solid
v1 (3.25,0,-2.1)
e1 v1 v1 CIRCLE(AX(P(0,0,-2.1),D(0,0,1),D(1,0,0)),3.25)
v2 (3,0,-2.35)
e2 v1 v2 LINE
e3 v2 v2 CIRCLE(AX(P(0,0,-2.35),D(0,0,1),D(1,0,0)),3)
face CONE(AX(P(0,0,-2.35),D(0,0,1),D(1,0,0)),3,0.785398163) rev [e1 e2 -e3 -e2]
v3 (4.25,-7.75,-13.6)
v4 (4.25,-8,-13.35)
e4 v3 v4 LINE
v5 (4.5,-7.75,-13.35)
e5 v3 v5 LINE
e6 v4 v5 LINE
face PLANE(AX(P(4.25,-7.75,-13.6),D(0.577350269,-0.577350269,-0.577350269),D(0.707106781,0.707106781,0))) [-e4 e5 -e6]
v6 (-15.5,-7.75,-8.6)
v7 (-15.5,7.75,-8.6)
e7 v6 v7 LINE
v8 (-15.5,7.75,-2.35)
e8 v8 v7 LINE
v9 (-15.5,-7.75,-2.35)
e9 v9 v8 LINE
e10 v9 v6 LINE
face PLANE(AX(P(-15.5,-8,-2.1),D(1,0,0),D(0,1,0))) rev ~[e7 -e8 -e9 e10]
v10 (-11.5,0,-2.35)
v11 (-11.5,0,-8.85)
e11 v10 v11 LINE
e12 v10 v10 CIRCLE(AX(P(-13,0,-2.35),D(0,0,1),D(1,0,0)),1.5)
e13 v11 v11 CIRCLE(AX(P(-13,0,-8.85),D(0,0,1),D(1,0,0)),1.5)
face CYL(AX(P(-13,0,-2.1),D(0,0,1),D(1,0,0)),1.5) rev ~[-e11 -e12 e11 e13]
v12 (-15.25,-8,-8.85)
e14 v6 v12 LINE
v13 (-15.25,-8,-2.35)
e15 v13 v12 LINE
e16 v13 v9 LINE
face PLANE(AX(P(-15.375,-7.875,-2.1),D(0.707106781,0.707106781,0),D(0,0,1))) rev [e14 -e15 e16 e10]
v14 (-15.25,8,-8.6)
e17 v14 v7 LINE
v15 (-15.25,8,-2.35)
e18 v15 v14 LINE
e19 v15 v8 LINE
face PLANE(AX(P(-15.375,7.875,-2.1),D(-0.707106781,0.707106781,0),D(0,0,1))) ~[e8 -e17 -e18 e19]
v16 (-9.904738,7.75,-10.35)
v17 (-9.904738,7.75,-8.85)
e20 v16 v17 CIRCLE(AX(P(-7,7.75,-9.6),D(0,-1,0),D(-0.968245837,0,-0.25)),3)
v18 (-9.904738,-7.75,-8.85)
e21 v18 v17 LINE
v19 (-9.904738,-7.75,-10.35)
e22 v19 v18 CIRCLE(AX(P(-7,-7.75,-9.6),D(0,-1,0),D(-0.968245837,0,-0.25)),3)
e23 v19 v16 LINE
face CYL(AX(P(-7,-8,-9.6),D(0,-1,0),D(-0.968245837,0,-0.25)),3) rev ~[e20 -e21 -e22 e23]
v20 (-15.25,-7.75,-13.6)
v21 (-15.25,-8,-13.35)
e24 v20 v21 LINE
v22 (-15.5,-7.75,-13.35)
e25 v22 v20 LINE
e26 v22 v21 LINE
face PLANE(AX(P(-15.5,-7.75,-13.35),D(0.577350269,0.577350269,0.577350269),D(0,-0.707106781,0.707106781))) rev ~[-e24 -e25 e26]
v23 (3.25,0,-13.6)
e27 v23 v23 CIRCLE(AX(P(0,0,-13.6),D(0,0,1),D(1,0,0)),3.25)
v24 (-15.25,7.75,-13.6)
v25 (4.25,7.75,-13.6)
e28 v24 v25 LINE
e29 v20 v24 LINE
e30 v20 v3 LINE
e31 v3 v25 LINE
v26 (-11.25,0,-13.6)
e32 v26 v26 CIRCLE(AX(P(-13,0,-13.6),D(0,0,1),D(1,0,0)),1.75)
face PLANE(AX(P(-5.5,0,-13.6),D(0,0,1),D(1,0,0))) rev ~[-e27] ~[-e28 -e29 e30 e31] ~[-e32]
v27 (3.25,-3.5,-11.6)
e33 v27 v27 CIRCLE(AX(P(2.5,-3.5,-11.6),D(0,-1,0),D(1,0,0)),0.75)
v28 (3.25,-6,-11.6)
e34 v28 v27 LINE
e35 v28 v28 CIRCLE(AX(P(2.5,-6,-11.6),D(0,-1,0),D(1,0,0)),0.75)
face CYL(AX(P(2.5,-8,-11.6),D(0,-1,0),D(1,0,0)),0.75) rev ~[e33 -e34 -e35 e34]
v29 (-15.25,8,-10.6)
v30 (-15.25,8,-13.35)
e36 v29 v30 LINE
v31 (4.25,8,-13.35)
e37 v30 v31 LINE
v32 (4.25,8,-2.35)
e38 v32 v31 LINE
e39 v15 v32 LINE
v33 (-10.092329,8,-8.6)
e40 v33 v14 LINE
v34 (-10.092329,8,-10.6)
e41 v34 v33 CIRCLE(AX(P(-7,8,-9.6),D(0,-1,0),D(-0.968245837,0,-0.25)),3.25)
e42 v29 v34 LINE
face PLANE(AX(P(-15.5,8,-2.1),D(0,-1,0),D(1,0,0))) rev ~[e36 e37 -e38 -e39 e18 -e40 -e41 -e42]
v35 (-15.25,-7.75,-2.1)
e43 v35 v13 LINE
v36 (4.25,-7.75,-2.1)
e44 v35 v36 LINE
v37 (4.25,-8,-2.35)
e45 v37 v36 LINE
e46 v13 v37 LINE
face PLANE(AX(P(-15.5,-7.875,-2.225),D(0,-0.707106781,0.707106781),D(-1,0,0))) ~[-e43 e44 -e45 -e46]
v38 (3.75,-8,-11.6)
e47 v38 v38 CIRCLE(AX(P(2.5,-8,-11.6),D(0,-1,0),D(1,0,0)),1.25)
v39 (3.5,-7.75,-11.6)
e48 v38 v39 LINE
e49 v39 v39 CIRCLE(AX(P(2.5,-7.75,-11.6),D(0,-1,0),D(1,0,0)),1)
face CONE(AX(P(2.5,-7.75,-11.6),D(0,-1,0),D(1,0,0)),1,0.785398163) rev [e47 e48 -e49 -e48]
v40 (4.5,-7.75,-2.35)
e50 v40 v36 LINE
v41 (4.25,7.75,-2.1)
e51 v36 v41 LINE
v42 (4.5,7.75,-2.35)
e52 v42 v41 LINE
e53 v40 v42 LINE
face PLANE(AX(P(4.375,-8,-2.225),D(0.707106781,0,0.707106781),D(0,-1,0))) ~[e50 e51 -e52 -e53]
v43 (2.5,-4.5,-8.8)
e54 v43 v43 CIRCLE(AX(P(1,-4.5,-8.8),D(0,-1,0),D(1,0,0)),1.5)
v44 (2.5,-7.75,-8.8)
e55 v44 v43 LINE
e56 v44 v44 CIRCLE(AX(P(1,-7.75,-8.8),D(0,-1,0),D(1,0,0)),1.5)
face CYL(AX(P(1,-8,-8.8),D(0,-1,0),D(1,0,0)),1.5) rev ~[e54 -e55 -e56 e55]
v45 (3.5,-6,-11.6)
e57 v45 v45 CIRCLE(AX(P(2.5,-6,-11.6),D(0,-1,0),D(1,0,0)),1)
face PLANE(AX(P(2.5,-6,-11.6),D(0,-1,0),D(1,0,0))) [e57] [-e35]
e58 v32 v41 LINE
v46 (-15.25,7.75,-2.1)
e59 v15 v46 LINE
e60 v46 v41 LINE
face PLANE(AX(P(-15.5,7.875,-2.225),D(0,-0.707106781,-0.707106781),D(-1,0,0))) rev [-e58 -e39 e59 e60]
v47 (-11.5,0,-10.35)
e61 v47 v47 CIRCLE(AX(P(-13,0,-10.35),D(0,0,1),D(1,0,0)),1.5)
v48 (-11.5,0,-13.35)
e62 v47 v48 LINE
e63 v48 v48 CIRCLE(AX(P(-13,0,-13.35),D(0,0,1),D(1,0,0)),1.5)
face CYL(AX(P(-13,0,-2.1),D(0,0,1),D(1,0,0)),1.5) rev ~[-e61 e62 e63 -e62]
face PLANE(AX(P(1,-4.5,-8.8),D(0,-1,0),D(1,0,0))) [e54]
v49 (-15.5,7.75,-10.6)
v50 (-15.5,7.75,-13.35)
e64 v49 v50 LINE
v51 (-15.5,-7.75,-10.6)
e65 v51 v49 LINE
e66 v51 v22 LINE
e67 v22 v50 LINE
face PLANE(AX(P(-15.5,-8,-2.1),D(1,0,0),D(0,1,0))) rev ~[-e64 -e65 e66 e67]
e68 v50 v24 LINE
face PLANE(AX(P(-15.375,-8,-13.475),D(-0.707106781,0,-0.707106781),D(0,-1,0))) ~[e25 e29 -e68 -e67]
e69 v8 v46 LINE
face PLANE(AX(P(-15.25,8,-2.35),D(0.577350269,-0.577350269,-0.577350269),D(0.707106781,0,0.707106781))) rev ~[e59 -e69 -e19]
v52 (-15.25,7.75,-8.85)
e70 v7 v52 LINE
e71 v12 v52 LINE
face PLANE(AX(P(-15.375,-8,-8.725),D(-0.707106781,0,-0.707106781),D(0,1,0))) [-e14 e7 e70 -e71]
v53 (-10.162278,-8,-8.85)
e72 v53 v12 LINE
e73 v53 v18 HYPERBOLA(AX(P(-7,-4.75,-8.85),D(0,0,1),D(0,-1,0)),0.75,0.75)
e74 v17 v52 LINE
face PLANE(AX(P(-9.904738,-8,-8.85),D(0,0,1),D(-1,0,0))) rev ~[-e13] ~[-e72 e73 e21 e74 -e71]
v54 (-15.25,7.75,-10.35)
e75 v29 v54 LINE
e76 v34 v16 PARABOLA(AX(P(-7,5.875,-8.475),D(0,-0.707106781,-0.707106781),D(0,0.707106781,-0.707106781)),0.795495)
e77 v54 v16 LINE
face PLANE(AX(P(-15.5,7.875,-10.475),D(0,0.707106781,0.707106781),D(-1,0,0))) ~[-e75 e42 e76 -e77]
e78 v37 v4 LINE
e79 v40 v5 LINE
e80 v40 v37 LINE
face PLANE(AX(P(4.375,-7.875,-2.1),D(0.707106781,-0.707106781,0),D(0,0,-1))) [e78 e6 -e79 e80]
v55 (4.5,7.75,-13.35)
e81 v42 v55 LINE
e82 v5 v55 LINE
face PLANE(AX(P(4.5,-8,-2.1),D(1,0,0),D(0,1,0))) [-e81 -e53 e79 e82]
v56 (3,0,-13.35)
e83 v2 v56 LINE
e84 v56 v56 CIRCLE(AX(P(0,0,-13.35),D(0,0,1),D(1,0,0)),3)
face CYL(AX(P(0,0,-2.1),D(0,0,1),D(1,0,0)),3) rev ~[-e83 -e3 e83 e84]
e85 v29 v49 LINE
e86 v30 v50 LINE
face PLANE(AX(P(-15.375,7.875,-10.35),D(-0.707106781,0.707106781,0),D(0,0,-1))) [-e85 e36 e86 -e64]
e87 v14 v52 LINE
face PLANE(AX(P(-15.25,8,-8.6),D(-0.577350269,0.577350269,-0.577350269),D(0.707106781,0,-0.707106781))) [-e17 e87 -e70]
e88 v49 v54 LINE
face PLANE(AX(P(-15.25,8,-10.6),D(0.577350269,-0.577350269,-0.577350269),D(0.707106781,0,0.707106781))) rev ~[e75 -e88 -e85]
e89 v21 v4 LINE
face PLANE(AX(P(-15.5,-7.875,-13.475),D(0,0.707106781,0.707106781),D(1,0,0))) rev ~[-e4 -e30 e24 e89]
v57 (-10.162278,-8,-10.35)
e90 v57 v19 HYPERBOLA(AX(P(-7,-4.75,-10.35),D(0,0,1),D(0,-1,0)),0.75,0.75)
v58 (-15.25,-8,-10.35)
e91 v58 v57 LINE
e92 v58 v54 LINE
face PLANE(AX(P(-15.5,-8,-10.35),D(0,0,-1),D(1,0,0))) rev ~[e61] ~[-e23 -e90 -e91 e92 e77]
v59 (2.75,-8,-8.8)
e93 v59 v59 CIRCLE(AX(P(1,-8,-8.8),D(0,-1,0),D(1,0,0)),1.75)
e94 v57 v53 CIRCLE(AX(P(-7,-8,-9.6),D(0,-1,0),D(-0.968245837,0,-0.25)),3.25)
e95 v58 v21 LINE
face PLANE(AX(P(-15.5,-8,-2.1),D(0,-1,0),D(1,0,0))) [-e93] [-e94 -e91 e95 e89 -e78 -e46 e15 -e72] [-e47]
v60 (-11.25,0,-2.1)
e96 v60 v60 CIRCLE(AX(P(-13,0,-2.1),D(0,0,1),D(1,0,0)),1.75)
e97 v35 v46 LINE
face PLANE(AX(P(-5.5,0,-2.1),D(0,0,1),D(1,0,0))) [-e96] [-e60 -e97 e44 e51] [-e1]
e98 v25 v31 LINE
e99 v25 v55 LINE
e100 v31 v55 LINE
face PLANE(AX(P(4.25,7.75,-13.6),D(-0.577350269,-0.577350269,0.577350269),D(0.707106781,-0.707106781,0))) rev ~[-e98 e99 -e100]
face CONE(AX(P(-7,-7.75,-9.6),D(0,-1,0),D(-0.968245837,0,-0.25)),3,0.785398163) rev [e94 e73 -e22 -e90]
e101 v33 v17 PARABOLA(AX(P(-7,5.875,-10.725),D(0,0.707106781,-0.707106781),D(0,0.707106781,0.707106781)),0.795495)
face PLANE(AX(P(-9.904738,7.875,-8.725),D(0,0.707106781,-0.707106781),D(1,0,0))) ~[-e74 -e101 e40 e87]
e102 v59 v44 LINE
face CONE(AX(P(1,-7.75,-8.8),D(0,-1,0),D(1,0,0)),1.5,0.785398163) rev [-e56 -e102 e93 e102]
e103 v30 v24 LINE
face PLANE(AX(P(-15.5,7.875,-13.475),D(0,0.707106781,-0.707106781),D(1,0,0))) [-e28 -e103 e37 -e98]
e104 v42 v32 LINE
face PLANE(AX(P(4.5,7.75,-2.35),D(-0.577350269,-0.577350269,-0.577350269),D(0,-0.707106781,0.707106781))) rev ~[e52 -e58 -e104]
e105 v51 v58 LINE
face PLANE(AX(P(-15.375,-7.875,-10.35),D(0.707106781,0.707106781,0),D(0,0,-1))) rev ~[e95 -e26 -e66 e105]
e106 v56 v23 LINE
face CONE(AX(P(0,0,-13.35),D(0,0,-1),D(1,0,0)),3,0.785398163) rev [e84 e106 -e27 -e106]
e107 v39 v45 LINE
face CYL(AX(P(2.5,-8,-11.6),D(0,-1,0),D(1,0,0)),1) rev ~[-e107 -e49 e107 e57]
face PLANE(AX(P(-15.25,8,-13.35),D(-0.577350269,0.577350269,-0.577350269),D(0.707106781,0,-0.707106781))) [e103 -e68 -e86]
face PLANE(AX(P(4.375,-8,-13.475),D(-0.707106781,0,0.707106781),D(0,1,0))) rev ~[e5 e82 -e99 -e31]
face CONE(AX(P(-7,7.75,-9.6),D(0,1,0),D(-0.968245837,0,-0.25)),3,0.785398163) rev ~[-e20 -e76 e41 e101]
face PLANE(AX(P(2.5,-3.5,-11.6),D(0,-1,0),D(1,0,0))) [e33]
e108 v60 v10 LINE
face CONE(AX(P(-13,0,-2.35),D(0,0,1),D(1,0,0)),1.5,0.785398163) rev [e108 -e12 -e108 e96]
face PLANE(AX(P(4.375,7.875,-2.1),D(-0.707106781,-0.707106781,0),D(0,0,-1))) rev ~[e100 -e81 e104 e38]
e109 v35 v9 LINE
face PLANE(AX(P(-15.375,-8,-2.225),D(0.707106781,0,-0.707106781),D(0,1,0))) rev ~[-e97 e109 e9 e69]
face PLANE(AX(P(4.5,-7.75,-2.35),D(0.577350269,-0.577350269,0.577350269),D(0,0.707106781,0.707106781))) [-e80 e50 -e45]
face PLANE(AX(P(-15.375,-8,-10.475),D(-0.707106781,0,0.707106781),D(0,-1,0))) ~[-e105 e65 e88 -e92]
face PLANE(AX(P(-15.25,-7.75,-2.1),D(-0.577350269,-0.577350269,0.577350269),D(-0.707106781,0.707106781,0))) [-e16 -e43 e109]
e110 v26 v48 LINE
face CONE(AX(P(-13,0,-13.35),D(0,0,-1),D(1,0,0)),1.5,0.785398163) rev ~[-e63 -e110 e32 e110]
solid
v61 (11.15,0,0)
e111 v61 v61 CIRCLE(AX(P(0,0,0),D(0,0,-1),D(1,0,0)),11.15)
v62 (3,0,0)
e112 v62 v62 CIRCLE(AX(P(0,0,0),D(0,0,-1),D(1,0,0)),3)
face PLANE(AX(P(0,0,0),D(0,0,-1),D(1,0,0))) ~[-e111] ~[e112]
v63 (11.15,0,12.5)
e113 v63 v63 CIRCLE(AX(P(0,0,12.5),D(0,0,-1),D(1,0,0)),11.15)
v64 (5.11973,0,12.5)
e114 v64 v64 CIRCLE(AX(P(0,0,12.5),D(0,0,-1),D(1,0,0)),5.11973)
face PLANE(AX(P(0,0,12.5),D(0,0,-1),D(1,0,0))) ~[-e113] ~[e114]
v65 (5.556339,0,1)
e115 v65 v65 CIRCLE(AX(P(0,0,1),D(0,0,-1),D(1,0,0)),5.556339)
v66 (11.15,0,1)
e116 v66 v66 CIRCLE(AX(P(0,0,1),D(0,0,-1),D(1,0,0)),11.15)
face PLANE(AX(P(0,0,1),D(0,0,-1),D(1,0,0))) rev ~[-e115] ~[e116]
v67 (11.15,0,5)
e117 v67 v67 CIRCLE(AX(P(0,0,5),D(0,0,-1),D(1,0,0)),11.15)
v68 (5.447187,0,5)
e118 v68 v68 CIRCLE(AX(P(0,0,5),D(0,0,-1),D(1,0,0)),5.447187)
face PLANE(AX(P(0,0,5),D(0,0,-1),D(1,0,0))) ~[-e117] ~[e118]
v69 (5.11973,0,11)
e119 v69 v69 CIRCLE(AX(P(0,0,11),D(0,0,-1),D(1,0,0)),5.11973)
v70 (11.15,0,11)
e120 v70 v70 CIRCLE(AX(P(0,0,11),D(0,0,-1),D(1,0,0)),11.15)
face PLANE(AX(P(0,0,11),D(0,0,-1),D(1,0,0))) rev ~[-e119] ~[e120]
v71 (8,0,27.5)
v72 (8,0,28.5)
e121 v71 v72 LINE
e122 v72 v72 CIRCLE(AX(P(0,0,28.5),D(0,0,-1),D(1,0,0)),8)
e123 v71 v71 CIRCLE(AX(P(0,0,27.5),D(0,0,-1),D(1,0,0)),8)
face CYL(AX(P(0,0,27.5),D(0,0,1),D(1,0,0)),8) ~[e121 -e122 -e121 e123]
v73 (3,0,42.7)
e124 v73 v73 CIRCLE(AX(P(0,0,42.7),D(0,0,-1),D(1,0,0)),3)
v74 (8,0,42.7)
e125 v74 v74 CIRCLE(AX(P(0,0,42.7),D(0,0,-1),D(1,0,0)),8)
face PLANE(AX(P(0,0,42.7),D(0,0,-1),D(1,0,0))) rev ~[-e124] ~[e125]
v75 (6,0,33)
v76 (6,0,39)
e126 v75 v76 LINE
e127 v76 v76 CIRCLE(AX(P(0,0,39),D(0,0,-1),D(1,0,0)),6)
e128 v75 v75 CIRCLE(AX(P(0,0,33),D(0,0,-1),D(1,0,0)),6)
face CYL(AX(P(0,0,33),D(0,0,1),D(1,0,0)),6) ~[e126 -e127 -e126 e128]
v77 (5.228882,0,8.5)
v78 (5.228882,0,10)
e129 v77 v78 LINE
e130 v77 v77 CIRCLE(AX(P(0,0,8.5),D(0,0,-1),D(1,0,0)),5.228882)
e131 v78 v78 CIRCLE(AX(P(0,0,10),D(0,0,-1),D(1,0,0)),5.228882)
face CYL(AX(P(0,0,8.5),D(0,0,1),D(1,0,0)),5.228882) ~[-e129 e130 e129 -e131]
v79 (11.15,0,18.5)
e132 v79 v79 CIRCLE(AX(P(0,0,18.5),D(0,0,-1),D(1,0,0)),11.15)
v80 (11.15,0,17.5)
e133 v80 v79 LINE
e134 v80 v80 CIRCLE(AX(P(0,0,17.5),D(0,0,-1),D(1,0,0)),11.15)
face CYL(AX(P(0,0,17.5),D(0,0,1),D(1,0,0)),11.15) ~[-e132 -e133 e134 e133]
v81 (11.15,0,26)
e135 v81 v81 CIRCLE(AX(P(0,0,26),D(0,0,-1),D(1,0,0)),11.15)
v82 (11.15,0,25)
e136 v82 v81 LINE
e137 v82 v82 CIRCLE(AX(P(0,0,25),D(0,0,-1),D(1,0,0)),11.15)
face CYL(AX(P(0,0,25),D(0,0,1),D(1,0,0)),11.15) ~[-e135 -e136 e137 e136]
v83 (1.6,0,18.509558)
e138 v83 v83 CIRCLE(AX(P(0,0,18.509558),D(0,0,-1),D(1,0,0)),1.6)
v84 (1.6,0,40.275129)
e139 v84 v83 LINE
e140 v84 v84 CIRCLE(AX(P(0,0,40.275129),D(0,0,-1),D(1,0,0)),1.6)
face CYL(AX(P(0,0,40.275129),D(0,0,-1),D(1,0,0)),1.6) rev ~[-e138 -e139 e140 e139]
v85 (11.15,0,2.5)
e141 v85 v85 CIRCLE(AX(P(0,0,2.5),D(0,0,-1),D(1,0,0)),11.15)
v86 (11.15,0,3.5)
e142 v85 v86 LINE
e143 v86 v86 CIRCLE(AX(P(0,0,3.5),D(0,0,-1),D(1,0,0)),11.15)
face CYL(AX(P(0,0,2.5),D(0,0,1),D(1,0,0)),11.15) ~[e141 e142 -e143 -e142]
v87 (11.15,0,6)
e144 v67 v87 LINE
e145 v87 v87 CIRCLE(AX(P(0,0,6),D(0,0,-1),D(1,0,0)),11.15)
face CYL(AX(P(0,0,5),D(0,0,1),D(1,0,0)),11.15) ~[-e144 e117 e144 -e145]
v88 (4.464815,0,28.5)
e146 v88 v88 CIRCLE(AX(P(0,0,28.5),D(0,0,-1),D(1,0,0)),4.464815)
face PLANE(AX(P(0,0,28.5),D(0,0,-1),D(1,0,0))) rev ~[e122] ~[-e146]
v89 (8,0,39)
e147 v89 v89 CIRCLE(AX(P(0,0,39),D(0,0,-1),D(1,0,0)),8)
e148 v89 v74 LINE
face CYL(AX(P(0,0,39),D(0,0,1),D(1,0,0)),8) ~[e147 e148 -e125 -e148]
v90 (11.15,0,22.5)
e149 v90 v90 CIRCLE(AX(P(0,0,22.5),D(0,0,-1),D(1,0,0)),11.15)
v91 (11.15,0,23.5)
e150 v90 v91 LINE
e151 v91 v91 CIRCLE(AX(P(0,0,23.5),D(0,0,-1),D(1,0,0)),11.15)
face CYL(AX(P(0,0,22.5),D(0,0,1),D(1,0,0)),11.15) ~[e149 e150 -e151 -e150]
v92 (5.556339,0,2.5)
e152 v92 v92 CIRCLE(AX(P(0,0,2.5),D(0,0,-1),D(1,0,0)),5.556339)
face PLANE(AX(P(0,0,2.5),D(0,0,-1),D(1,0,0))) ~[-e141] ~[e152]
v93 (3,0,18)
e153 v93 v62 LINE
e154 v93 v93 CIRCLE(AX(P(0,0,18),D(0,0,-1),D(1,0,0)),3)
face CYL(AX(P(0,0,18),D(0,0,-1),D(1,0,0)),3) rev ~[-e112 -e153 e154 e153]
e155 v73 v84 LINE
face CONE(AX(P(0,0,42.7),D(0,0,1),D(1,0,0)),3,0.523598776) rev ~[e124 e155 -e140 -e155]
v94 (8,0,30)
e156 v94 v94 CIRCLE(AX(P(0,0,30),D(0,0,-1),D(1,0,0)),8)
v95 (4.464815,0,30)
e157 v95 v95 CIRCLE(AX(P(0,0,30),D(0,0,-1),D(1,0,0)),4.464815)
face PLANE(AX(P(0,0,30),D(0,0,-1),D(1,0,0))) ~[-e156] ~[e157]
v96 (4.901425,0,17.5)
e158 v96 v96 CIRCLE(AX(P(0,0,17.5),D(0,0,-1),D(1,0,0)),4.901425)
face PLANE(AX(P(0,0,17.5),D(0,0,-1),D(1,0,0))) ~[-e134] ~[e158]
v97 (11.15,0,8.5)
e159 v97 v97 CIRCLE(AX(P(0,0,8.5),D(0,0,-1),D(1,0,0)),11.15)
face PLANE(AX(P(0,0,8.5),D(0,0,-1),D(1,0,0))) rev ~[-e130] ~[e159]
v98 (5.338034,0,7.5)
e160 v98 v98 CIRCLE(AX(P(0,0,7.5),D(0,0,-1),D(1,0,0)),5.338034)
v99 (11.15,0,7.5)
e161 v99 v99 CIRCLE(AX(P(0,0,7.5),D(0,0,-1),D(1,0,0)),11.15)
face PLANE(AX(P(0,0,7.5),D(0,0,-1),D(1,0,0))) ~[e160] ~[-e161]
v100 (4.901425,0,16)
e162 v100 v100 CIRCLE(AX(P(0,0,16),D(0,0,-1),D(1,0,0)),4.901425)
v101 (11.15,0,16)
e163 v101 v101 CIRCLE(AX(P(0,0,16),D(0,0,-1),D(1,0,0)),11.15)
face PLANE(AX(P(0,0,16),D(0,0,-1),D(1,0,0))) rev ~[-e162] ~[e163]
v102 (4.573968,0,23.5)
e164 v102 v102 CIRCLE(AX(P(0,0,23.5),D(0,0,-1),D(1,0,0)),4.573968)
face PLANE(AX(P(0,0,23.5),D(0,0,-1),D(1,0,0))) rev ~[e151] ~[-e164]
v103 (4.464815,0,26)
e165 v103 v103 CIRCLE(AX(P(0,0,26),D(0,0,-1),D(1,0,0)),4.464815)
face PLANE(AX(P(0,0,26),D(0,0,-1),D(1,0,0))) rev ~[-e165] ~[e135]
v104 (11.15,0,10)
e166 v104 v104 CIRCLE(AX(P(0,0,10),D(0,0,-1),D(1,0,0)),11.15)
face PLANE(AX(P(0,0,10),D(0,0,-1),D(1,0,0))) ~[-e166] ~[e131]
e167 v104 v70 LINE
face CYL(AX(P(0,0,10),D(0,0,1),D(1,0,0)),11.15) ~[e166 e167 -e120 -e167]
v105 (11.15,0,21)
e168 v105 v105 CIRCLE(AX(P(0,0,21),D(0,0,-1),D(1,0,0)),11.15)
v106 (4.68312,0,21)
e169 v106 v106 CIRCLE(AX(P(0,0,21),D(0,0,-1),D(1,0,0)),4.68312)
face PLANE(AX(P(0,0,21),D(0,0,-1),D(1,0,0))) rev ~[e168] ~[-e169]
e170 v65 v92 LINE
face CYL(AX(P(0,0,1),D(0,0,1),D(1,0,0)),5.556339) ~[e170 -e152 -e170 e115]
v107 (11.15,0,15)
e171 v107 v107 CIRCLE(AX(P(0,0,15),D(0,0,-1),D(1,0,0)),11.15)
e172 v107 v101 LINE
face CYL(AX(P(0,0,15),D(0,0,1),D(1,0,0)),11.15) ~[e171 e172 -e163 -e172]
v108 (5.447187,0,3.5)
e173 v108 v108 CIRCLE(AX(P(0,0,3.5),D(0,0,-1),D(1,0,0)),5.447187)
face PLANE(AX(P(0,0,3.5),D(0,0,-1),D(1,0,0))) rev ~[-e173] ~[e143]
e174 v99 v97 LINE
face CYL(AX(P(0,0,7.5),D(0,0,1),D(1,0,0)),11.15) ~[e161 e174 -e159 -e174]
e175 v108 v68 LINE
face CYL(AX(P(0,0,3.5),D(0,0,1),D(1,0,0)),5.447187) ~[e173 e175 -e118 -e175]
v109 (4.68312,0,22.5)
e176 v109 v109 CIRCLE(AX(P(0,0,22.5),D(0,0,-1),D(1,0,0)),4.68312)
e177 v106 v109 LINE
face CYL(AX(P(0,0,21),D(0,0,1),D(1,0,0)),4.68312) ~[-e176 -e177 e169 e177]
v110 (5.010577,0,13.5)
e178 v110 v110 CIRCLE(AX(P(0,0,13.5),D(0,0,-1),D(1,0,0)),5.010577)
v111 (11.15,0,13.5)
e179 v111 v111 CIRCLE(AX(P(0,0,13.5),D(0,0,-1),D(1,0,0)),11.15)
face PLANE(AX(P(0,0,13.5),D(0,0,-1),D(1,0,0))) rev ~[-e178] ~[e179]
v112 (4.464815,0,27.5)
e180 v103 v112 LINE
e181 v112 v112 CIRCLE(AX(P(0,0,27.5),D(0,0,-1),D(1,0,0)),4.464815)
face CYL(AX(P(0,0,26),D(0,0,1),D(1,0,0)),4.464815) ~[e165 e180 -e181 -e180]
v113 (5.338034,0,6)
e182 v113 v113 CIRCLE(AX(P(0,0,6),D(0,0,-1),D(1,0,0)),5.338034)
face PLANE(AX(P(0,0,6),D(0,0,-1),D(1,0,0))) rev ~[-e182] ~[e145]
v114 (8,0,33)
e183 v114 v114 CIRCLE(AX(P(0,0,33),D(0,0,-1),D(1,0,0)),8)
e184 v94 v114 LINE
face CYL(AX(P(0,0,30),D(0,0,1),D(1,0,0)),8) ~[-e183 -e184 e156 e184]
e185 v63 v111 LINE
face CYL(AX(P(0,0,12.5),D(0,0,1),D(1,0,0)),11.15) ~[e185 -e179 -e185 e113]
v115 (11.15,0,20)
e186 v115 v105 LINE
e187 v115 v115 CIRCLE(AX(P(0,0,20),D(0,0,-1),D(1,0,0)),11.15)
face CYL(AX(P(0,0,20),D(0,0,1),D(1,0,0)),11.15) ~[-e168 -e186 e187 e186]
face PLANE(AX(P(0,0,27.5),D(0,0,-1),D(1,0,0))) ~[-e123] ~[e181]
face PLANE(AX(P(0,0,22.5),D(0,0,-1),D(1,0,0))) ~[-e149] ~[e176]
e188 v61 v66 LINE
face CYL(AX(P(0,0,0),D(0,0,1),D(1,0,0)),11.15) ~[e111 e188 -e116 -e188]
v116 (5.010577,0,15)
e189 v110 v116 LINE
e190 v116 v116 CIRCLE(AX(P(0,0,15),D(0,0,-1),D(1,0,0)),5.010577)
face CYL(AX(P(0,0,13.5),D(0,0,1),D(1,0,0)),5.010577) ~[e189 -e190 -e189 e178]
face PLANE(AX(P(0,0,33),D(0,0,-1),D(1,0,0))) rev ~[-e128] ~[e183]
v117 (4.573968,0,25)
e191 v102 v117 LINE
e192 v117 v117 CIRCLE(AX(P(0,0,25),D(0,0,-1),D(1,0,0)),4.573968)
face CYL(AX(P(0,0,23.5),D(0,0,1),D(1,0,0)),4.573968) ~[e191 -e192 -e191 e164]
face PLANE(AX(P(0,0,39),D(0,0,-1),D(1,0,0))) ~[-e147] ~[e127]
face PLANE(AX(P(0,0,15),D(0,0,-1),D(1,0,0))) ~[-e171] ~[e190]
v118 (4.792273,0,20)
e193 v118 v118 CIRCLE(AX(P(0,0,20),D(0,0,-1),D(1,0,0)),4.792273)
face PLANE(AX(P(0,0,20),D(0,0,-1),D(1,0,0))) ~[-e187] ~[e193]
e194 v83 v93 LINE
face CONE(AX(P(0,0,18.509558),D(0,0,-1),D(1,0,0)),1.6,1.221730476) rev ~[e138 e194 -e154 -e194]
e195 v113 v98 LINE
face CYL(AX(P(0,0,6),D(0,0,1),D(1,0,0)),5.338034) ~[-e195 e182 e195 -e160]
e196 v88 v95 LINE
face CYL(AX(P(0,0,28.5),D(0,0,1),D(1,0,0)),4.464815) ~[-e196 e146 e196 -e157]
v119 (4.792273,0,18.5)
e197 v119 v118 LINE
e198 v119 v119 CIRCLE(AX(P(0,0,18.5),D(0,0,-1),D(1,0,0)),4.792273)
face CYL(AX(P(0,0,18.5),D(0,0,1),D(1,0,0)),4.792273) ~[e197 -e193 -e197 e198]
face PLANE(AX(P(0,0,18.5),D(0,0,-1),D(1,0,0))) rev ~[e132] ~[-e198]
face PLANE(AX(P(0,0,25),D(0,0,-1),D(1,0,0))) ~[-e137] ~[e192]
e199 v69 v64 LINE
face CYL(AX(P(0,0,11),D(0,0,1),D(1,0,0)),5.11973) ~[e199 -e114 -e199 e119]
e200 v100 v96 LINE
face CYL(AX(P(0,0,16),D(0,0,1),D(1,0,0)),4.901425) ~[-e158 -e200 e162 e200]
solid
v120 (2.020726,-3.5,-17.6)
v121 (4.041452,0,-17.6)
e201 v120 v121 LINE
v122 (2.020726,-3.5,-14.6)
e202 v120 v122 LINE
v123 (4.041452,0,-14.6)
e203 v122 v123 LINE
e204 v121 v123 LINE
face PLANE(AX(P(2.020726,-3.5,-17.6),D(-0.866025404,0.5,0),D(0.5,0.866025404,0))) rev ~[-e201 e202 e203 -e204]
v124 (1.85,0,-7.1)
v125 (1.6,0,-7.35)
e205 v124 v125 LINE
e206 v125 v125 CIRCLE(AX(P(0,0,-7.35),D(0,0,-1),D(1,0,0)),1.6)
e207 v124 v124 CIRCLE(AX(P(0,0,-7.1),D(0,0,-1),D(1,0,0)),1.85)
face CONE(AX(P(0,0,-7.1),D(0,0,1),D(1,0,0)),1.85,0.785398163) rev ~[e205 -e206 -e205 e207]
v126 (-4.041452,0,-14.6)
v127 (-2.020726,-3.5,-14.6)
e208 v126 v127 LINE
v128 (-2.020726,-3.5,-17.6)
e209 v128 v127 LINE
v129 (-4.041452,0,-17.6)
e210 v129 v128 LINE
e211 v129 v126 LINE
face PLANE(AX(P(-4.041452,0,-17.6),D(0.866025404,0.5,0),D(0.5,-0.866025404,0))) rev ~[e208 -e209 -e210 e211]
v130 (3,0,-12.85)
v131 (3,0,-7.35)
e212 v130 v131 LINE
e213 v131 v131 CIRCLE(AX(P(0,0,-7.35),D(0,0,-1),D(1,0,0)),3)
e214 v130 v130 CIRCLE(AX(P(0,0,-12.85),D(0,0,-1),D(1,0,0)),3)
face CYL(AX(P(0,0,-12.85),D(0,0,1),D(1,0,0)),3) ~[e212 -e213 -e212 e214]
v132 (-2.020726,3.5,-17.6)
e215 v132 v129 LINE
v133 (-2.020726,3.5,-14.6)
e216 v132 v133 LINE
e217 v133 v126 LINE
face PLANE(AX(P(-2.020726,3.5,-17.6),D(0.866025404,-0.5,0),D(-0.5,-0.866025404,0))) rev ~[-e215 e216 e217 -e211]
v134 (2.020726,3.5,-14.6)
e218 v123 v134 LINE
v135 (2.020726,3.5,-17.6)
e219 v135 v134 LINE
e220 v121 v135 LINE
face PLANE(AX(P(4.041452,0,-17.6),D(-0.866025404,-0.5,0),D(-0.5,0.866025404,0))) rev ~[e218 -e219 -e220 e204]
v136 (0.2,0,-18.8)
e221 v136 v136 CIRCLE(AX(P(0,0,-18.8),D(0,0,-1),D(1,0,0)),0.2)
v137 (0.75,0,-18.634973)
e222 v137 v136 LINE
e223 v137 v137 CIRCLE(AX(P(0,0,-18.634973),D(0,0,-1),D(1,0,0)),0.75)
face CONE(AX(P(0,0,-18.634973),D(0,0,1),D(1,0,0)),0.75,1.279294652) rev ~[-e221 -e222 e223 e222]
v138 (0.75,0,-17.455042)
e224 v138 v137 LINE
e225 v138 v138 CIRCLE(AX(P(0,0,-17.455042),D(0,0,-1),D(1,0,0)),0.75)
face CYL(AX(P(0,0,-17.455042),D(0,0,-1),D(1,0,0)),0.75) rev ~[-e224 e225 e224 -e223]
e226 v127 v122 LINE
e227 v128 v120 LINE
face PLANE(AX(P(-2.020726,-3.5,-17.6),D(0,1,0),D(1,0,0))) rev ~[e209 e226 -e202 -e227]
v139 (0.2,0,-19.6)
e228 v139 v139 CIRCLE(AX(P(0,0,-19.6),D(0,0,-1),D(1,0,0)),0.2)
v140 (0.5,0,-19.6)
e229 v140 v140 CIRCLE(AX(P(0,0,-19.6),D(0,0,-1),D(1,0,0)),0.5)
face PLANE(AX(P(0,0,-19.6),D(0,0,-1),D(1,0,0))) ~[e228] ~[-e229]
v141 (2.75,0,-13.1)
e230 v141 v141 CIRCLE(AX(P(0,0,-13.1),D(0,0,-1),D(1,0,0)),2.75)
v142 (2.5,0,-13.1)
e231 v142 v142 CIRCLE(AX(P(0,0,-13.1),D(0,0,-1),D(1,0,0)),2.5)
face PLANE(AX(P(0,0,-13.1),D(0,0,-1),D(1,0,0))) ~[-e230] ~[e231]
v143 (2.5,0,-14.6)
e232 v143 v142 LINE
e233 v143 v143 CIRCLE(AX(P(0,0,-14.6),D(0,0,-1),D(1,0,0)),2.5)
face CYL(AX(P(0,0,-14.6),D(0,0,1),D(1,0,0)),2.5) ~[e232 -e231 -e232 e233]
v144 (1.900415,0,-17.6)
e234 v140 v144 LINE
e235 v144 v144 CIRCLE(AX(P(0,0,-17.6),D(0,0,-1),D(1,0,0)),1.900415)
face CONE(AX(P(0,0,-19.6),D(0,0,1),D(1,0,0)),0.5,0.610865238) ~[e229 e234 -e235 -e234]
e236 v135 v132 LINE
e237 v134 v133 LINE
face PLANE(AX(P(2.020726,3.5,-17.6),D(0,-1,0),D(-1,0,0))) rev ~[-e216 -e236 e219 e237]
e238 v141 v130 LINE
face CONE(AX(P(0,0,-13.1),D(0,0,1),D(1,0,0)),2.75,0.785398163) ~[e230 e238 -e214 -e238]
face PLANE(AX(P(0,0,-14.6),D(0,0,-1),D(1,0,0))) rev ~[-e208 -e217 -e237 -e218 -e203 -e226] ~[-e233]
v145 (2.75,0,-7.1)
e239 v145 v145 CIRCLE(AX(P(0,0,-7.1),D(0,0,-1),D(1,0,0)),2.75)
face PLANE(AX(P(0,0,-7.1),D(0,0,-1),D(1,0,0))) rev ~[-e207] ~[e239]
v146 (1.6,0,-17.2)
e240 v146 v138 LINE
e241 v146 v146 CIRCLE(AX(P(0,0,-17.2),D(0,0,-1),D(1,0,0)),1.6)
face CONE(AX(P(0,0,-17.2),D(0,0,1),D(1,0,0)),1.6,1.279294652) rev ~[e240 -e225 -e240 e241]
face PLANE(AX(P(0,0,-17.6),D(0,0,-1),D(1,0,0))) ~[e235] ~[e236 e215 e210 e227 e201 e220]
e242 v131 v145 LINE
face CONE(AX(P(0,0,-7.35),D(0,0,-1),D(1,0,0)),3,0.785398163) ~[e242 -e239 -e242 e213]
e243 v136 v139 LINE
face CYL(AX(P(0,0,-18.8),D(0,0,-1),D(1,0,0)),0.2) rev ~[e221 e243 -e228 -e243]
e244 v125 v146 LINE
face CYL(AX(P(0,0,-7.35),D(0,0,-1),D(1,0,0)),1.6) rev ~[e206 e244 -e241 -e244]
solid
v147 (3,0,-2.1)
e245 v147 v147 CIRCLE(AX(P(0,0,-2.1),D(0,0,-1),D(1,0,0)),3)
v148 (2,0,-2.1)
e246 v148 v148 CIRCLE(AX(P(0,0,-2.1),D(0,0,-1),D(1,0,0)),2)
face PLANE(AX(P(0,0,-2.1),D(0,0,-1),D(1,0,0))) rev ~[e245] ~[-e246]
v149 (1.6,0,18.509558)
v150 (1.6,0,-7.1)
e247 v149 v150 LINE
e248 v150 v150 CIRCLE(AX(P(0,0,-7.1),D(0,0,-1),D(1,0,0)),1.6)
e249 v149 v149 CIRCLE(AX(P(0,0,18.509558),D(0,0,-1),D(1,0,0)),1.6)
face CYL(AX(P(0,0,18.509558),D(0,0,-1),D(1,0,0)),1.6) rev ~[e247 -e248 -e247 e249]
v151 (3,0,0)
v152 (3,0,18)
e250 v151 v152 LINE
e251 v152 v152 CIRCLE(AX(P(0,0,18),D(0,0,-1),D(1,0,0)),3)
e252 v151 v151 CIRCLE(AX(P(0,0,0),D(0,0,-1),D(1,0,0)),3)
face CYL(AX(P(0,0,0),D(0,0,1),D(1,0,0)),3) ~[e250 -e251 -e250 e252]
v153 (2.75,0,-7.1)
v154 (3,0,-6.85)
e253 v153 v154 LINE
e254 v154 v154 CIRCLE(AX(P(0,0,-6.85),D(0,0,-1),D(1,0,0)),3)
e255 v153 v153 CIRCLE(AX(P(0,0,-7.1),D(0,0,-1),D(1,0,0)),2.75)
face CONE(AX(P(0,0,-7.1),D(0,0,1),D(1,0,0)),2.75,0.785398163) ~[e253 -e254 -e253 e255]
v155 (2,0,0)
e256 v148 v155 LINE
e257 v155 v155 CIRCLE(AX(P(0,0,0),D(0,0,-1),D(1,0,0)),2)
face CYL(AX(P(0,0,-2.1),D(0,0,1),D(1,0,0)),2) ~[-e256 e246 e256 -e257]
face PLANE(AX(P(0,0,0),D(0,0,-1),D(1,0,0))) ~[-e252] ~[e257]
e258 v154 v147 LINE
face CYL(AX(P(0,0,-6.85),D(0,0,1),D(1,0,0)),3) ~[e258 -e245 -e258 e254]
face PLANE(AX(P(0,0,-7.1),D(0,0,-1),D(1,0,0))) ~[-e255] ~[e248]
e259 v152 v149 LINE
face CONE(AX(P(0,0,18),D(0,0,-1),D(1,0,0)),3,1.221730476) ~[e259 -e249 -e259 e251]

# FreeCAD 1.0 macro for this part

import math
import FreeCAD as App
import Part
import Sketcher
from FreeCAD import Vector
Q = App.Units.Quantity


def edges_at(feature, points):
    """Names of the edges that pass closest to the given points."""
    edges = feature.Shape.Edges
    near = lambda p: min(range(len(edges)), key=lambda i: edges[i].distToShape(Part.Vertex(*p))[0])
    return sorted({f"Edge{near(p) + 1}" for p in points})


def add_polygon(sketch, points):
    """Adds a closed chain of lines whose ends are joined by coincident constraints."""
    first, n = sketch.GeometryCount, len(points)
    for a, b in zip(points, points[1:] + points[:1]):
        sketch.addGeometry(Part.LineSegment(App.Vector(*a, 0), App.Vector(*b, 0)), False)
    for i in range(n):
        sketch.addConstraint(Sketcher.Constraint("Coincident", first + i, 2, first + (i + 1) % n, 1))

doc = App.newDocument("Part")
body = doc.addObject("PartDesign::Body", "Body")

sketch1 = doc.addObject("Sketcher::SketchObject", "Sketch")
body.addObject(sketch1)
sketch1.AttachmentSupport = (doc.XZ_Plane, [""])
sketch1.MapMode = "FlatFace"
add_polygon(sketch1, [(1.6, 40.3), (1.6, 18.5), (3, 18), (3, 0), (11.2, 0), (11.2, 1), (5.6, 1), (5.6, 2.5), (11.2, 2.5), (11.2, 3.5), (5.4, 3.5), (5.4, 5), (11.2, 5), (11.2, 6), (5.3, 6), (5.3, 7.5), (11.2, 7.5), (11.2, 8.5), (5.2, 8.5), (5.2, 10), (11.2, 10), (11.2, 11), (5.1, 11), (5.1, 12.5), (11.2, 12.5), (11.2, 13.5), (5, 13.5), (5, 15), (11.2, 15), (11.2, 16), (4.9, 16), (4.9, 17.5), (11.2, 17.5), (11.2, 18.5), (4.8, 18.5), (4.8, 20), (11.2, 20), (11.2, 21), (4.7, 21), (4.7, 22.5), (11.2, 22.5), (11.2, 23.5), (4.6, 23.5), (4.6, 25), (11.2, 25), (11.2, 26), (4.5, 26), (4.5, 27.5), (8, 27.5), (8, 28.5), (4.5, 28.5), (4.5, 30), (8, 30), (8, 33), (6, 33), (6, 39), (8, 39), (8, 42.7), (3, 42.7)])
sketch1.addConstraint(Sketcher.Constraint("Vertical", 0))
sketch1.addConstraint(Sketcher.Constraint("Vertical", 2))
sketch1.addConstraint(Sketcher.Constraint("Horizontal", 3))
sketch1.addConstraint(Sketcher.Constraint("Vertical", 4))
sketch1.addConstraint(Sketcher.Constraint("Horizontal", 5))
sketch1.addConstraint(Sketcher.Constraint("Vertical", 6))
sketch1.addConstraint(Sketcher.Constraint("Horizontal", 7))
sketch1.addConstraint(Sketcher.Constraint("Vertical", 8))
sketch1.addConstraint(Sketcher.Constraint("Horizontal", 9))
sketch1.addConstraint(Sketcher.Constraint("Vertical", 10))
sketch1.addConstraint(Sketcher.Constraint("Horizontal", 11))
sketch1.addConstraint(Sketcher.Constraint("Vertical", 12))
sketch1.addConstraint(Sketcher.Constraint("Horizontal", 13))
sketch1.addConstraint(Sketcher.Constraint("Vertical", 14))
sketch1.addConstraint(Sketcher.Constraint("Horizontal", 15))
sketch1.addConstraint(Sketcher.Constraint("Vertical", 16))
sketch1.addConstraint(Sketcher.Constraint("Horizontal", 17))
sketch1.addConstraint(Sketcher.Constraint("Vertical", 18))
sketch1.addConstraint(Sketcher.Constraint("Horizontal", 19))
sketch1.addConstraint(Sketcher.Constraint("Vertical", 20))
sketch1.addConstraint(Sketcher.Constraint("Horizontal", 21))
sketch1.addConstraint(Sketcher.Constraint("Vertical", 22))
sketch1.addConstraint(Sketcher.Constraint("Horizontal", 23))
sketch1.addConstraint(Sketcher.Constraint("Vertical", 24))
sketch1.addConstraint(Sketcher.Constraint("Horizontal", 25))
sketch1.addConstraint(Sketcher.Constraint("Vertical", 26))
sketch1.addConstraint(Sketcher.Constraint("Horizontal", 27))
sketch1.addConstraint(Sketcher.Constraint("Vertical", 28))
sketch1.addConstraint(Sketcher.Constraint("Horizontal", 29))
sketch1.addConstraint(Sketcher.Constraint("Vertical", 30))
sketch1.addConstraint(Sketcher.Constraint("Horizontal", 31))
sketch1.addConstraint(Sketcher.Constraint("Vertical", 32))
sketch1.addConstraint(Sketcher.Constraint("Horizontal", 33))
sketch1.addConstraint(Sketcher.Constraint("Vertical", 34))
sketch1.addConstraint(Sketcher.Constraint("Horizontal", 35))
sketch1.addConstraint(Sketcher.Constraint("Vertical", 36))
sketch1.addConstraint(Sketcher.Constraint("Horizontal", 37))
sketch1.addConstraint(Sketcher.Constraint("Vertical", 38))
sketch1.addConstraint(Sketcher.Constraint("Horizontal", 39))
sketch1.addConstraint(Sketcher.Constraint("Vertical", 40))
sketch1.addConstraint(Sketcher.Constraint("Horizontal", 41))
sketch1.addConstraint(Sketcher.Constraint("Vertical", 42))
sketch1.addConstraint(Sketcher.Constraint("Horizontal", 43))
sketch1.addConstraint(Sketcher.Constraint("Vertical", 44))
sketch1.addConstraint(Sketcher.Constraint("Horizontal", 45))
sketch1.addConstraint(Sketcher.Constraint("Vertical", 46))
sketch1.addConstraint(Sketcher.Constraint("Horizontal", 47))
sketch1.addConstraint(Sketcher.Constraint("Vertical", 48))
sketch1.addConstraint(Sketcher.Constraint("Horizontal", 49))
sketch1.addConstraint(Sketcher.Constraint("Vertical", 50))
sketch1.addConstraint(Sketcher.Constraint("Horizontal", 51))
sketch1.addConstraint(Sketcher.Constraint("Vertical", 52))
sketch1.addConstraint(Sketcher.Constraint("Horizontal", 53))
sketch1.addConstraint(Sketcher.Constraint("Vertical", 54))
sketch1.addConstraint(Sketcher.Constraint("Horizontal", 55))
sketch1.addConstraint(Sketcher.Constraint("Vertical", 56))
sketch1.addConstraint(Sketcher.Constraint("Horizontal", 57))
sketch1.addConstraint(Sketcher.Constraint("PointOnObject", 2, 2, -1))
sketch1.addConstraint(Sketcher.Constraint("Vertical", 4, 2, 7, 2))
sketch1.addConstraint(Sketcher.Constraint("Vertical", 8, 2, 11, 2))
sketch1.addConstraint(Sketcher.Constraint("Vertical", 12, 2, 15, 2))
sketch1.addConstraint(Sketcher.Constraint("Vertical", 16, 2, 19, 2))
sketch1.addConstraint(Sketcher.Constraint("Vertical", 20, 2, 23, 2))
sketch1.addConstraint(Sketcher.Constraint("Vertical", 24, 2, 27, 2))
sketch1.addConstraint(Sketcher.Constraint("Vertical", 28, 2, 31, 2))
sketch1.addConstraint(Sketcher.Constraint("Vertical", 32, 2, 35, 2))
sketch1.addConstraint(Sketcher.Constraint("Vertical", 36, 2, 39, 2))
sketch1.addConstraint(Sketcher.Constraint("Vertical", 40, 2, 43, 2))
sketch1.addConstraint(Sketcher.Constraint("Vertical", 46, 2, 49, 2))
sketch1.addConstraint(Sketcher.Constraint("Vertical", 48, 2, 51, 2))
sketch1.addConstraint(Sketcher.Constraint("Vertical", 52, 2, 55, 2))
sketch1.addConstraint(Sketcher.Constraint("Vertical", 2, 2, 57, 2))
sketch1.addConstraint(Sketcher.Constraint("Equal", 4, 8))
sketch1.addConstraint(Sketcher.Constraint("Equal", 6, 10))
sketch1.addConstraint(Sketcher.Constraint("Equal", 8, 12))
sketch1.addConstraint(Sketcher.Constraint("Equal", 10, 14))
sketch1.addConstraint(Sketcher.Constraint("Equal", 12, 16))
sketch1.addConstraint(Sketcher.Constraint("Equal", 14, 18))
sketch1.addConstraint(Sketcher.Constraint("Equal", 16, 20))
sketch1.addConstraint(Sketcher.Constraint("Equal", 18, 22))
sketch1.addConstraint(Sketcher.Constraint("Equal", 20, 24))
sketch1.addConstraint(Sketcher.Constraint("Equal", 22, 26))
sketch1.addConstraint(Sketcher.Constraint("Equal", 24, 28))
sketch1.addConstraint(Sketcher.Constraint("Equal", 26, 30))
sketch1.addConstraint(Sketcher.Constraint("Equal", 28, 32))
sketch1.addConstraint(Sketcher.Constraint("Equal", 30, 34))
sketch1.addConstraint(Sketcher.Constraint("Equal", 32, 36))
sketch1.addConstraint(Sketcher.Constraint("Equal", 34, 38))
sketch1.addConstraint(Sketcher.Constraint("Equal", 36, 40))
sketch1.addConstraint(Sketcher.Constraint("Equal", 38, 42))
sketch1.addConstraint(Sketcher.Constraint("Equal", 40, 44))
sketch1.addConstraint(Sketcher.Constraint("Equal", 42, 46))
sketch1.addConstraint(Sketcher.Constraint("Equal", 44, 48))
sketch1.addConstraint(Sketcher.Constraint("Equal", 46, 50))
sketch1.addConstraint(Sketcher.Constraint("DistanceX", 53, 2, 53, 1, 2.0))
sketch1.addConstraint(Sketcher.Constraint("DistanceX", 57, 2, 57, 1, 5.0))
sketch1.addConstraint(Sketcher.Constraint("DistanceY", 2, 2, 2, 1, 18.0))
sketch1.addConstraint(Sketcher.Constraint("DistanceY", 4, 1, 4, 2, 1.0))
sketch1.addConstraint(Sketcher.Constraint("DistanceY", 52, 1, 52, 2, 3.0))
sketch1.addConstraint(Sketcher.Constraint("DistanceY", 54, 1, 54, 2, 6.0))
sketch1.addConstraint(Sketcher.Constraint("Angle", 1, Q("-20 deg")))
sketch1.addConstraint(Sketcher.Constraint("Angle", 58, Q("-120 deg")))
sketch1.addConstraint(Sketcher.Constraint("DistanceY", 6, 1, 6, 2, 1.5))
sketch1.addConstraint(Sketcher.Constraint("DistanceY", 56, 1, 56, 2, 3.7))
sketch1.addConstraint(Sketcher.Constraint("DistanceX", -1, 1, 1, 2, 3.0))
sketch1.addConstraint(Sketcher.Constraint("Distance", 58, 2.8))
sketch1.addConstraint(Sketcher.Constraint("DistanceX", 3, 1, 3, 2, 8.15))
sketch1.addConstraint(Sketcher.Constraint("DistanceX", 5, 2, 5, 1, 5.593661))
sketch1.addConstraint(Sketcher.Constraint("DistanceX", 17, 2, 17, 1, 5.921118))
sketch1.addConstraint(Sketcher.Constraint("DistanceX", 21, 2, 21, 1, 6.03027))
sketch1.addConstraint(Sketcher.Constraint("DistanceX", 37, 2, 37, 1, 6.46688))
sketch1.addConstraint(Sketcher.Constraint("DistanceX", 9, 2, 9, 1, 5.702813))
sketch1.addConstraint(Sketcher.Constraint("DistanceX", 13, 2, 13, 1, 5.811966))
sketch1.addConstraint(Sketcher.Constraint("DistanceX", 25, 2, 25, 1, 6.139423))
sketch1.addConstraint(Sketcher.Constraint("DistanceX", 29, 2, 29, 1, 6.248575))
sketch1.addConstraint(Sketcher.Constraint("DistanceX", 33, 2, 33, 1, 6.357727))
sketch1.addConstraint(Sketcher.Constraint("DistanceX", 41, 2, 41, 1, 6.576032))
sketch1.addConstraint(Sketcher.Constraint("DistanceX", 45, 2, 45, 1, 6.685185))
revolution = doc.addObject("PartDesign::Revolution", "Revolution")
body.addObject(revolution)
revolution.Profile = sketch1
revolution.ReferenceAxis = (sketch1, ["V_Axis"])
revolution.Angle = 360
body2 = doc.addObject("PartDesign::Body", "Body001")

sketch2 = doc.addObject("Sketcher::SketchObject", "Sketch001")
body2.addObject(sketch2)
sketch2.AttachmentSupport = (doc.getObject("XZ_Plane001"), [""])
sketch2.MapMode = "FlatFace"
add_polygon(sketch2, [(1.6, 18.51), (1.6, -7.1), (2.75, -7.1), (3, -6.85), (3, -2.1), (2, -2.1), (2, 0), (3, 0), (3, 18)])
sketch2.addConstraint(Sketcher.Constraint("Vertical", 0))
sketch2.addConstraint(Sketcher.Constraint("Horizontal", 1))
sketch2.addConstraint(Sketcher.Constraint("Vertical", 3))
sketch2.addConstraint(Sketcher.Constraint("Horizontal", 4))
sketch2.addConstraint(Sketcher.Constraint("Vertical", 5))
sketch2.addConstraint(Sketcher.Constraint("Horizontal", 6))
sketch2.addConstraint(Sketcher.Constraint("Vertical", 7))
sketch2.addConstraint(Sketcher.Constraint("PointOnObject", 5, 2, -1))
sketch2.addConstraint(Sketcher.Constraint("Vertical", 3, 2, 6, 2))
sketch2.addConstraint(Sketcher.Constraint("DistanceX", 4, 2, 4, 1, 1.0))
sketch2.addConstraint(Sketcher.Constraint("DistanceY", 7, 1, 7, 2, 18.0))
sketch2.addConstraint(Sketcher.Constraint("Angle", 2, Q("45 deg")))
sketch2.addConstraint(Sketcher.Constraint("Angle", 8, Q("160 deg")))
sketch2.addConstraint(Sketcher.Constraint("DistanceY", 5, 1, 5, 2, 2.1))
sketch2.addConstraint(Sketcher.Constraint("DistanceX", -1, 1, 2, 2, 3.0))
sketch2.addConstraint(Sketcher.Constraint("DistanceY", 1, 2, 3, 2, 5.0))
sketch2.addConstraint(Sketcher.Constraint("DistanceX", 1, 1, 1, 2, 1.15))
sketch2.addConstraint(Sketcher.Constraint("DistanceY", 3, 1, 3, 2, 4.75))
revolution2 = doc.addObject("PartDesign::Revolution", "Revolution001")
body2.addObject(revolution2)
revolution2.Profile = sketch2
revolution2.ReferenceAxis = (sketch2, ["V_Axis"])
revolution2.Angle = 360
body3 = doc.addObject("PartDesign::Body", "Body002")

sketch3 = doc.addObject("Sketcher::SketchObject", "Sketch002")
body3.addObject(sketch3)
sketch3.AttachmentSupport = (doc.getObject("XZ_Plane002"), [""])
sketch3.MapMode = "FlatFace"
add_polygon(sketch3, [(2.75, -7.1), (1.85, -7.1), (1.6, -7.35), (1.6, -17.2), (0.75, -17.46), (0.75, -18.63), (0.2, -18.8), (0.2, -19.6), (0.5, -19.6), (1.9, -17.6), (5, -17.6), (5, -14.6), (2.5, -14.6), (2.5, -13.1), (2.75, -13.1), (3, -12.85), (3, -7.35)])
sketch3.addConstraint(Sketcher.Constraint("Horizontal", 0))
sketch3.addConstraint(Sketcher.Constraint("Vertical", 2))
sketch3.addConstraint(Sketcher.Constraint("Vertical", 4))
sketch3.addConstraint(Sketcher.Constraint("Vertical", 6))
sketch3.addConstraint(Sketcher.Constraint("Horizontal", 7))
sketch3.addConstraint(Sketcher.Constraint("Horizontal", 9))
sketch3.addConstraint(Sketcher.Constraint("Vertical", 10))
sketch3.addConstraint(Sketcher.Constraint("Horizontal", 11))
sketch3.addConstraint(Sketcher.Constraint("Vertical", 12))
sketch3.addConstraint(Sketcher.Constraint("Horizontal", 13))
sketch3.addConstraint(Sketcher.Constraint("Vertical", 15))
sketch3.addConstraint(Sketcher.Constraint("Parallel", 3, 5))
sketch3.addConstraint(Sketcher.Constraint("Parallel", 1, 14))
sketch3.addConstraint(Sketcher.Constraint("Perpendicular", 14, 16))
sketch3.addConstraint(Sketcher.Constraint("Horizontal", 1, 2, 15, 2))
sketch3.addConstraint(Sketcher.Constraint("Vertical", 13, 2, 16, 2))
sketch3.addConstraint(Sketcher.Constraint("Equal", 1, 14))
sketch3.addConstraint(Sketcher.Constraint("DistanceY", 10, 1, 10, 2, 3.0))
sketch3.addConstraint(Sketcher.Constraint("Angle", 8, Q("55 deg")))
sketch3.addConstraint(Sketcher.Constraint("DistanceX", 0, 2, 0, 1, 0.9))
sketch3.addConstraint(Sketcher.Constraint("DistanceX", 7, 1, 7, 2, 0.3))
sketch3.addConstraint(Sketcher.Constraint("DistanceX", 11, 2, 11, 1, 2.5))
sketch3.addConstraint(Sketcher.Constraint("DistanceY", 6, 2, 6, 1, 0.8))
sketch3.addConstraint(Sketcher.Constraint("DistanceY", 12, 1, 12, 2, 1.5))
sketch3.addConstraint(Sketcher.Constraint("DistanceY", 15, 1, 15, 2, 5.5))
sketch3.addConstraint(Sketcher.Constraint("DistanceX", -1, 1, 9, 2, 5.0))
sketch3.addConstraint(Sketcher.Constraint("DistanceX", -1, 1, 14, 2, 3.0))
sketch3.addConstraint(Sketcher.Constraint("DistanceY", 7, 2, 8, 2, 2.0))
sketch3.addConstraint(Sketcher.Constraint("DistanceY", 13, 2, 16, 2, 6.0))
sketch3.addConstraint(Sketcher.Constraint("DistanceY", 2, 2, 2, 1, 9.85))
sketch3.addConstraint(Sketcher.Constraint("DistanceY", 0, 2, -1, 1, 7.1))
sketch3.addConstraint(Sketcher.Constraint("DistanceX", -1, 1, 5, 2, 0.2))
sketch3.addConstraint(Sketcher.Constraint("DistanceX", 3, 2, 0, 2, 1.1))
sketch3.addConstraint(Sketcher.Constraint("DistanceY", 4, 2, 4, 1, 1.179932))
revolution3 = doc.addObject("PartDesign::Revolution", "Revolution002")
body3.addObject(revolution3)
revolution3.Profile = sketch3
revolution3.ReferenceAxis = (sketch3, ["V_Axis"])
revolution3.Angle = 360

sketch4 = doc.addObject("Sketcher::SketchObject", "Sketch003")
body3.addObject(sketch4)
sketch4.AttachmentSupport = (doc.getObject("XY_Plane002"), [""])
sketch4.MapMode = "FlatFace"
sketch4.AttachmentOffset = App.Placement(Vector(0, 0, -17.6), App.Rotation())
sketch4.addGeometry(Part.Circle(Vector(0, 0, 0), Vector(0, 0, 1), 5), False)
add_polygon(sketch4, [(-2, 3.5), (-4, 0), (-2, -3.5), (2, -3.5), (4, 0), (2, 3.5)])
sketch4.addConstraint(Sketcher.Constraint("Horizontal", 3))
sketch4.addConstraint(Sketcher.Constraint("Horizontal", 6))
sketch4.addConstraint(Sketcher.Constraint("Coincident", 0, 3, -1, 1))
sketch4.addConstraint(Sketcher.Constraint("Symmetric", 1, 2, 4, 2, -1, 1))
sketch4.addConstraint(Sketcher.Constraint("Symmetric", 2, 2, 5, 2, -1, 1))
sketch4.addConstraint(Sketcher.Constraint("PointOnObject", 1, 2, -1))
sketch4.addConstraint(Sketcher.Constraint("Parallel", 1, 4))
sketch4.addConstraint(Sketcher.Constraint("Vertical", 3, 2, 5, 2))
sketch4.addConstraint(Sketcher.Constraint("Diameter", 0, 10.0))
sketch4.addConstraint(Sketcher.Constraint("Angle", 1, Q("-120 deg")))
sketch4.addConstraint(Sketcher.Constraint("DistanceY", 3, 2, 5, 2, 7.0))
sketch4.addConstraint(Sketcher.Constraint("DistanceX", 3, 1, 3, 2, 4.041452))
pocket1 = doc.addObject("PartDesign::Pocket", "Pocket")
body3.addObject(pocket1)
pocket1.Profile = sketch4
pocket1.Type = "ThroughAll"
pocket1.Reversed = True
body4 = doc.addObject("PartDesign::Body", "Body003")

sketch5 = doc.addObject("Sketcher::SketchObject", "Sketch004")
body4.addObject(sketch5)
sketch5.AttachmentSupport = (doc.getObject("XY_Plane003"), [""])
sketch5.MapMode = "FlatFace"
sketch5.AttachmentOffset = App.Placement(Vector(0, 0, -2.1), App.Rotation())
add_polygon(sketch5, [(-15.5, 8), (-15.5, -8), (4.5, -8), (4.5, 8)])
sketch5.addGeometry(Part.Circle(Vector(-13, 0, 0), Vector(0, 0, 1), 1.5), False)
sketch5.addGeometry(Part.Circle(Vector(0, 0, 0), Vector(0, 0, 1), 3), False)
sketch5.addConstraint(Sketcher.Constraint("Vertical", 0))
sketch5.addConstraint(Sketcher.Constraint("Horizontal", 1))
sketch5.addConstraint(Sketcher.Constraint("Vertical", 2))
sketch5.addConstraint(Sketcher.Constraint("Horizontal", 3))
sketch5.addConstraint(Sketcher.Constraint("Coincident", 5, 3, -1, 1))
sketch5.addConstraint(Sketcher.Constraint("PointOnObject", 4, 3, -1))
sketch5.addConstraint(Sketcher.Constraint("Diameter", 4, 3.0))
sketch5.addConstraint(Sketcher.Constraint("Diameter", 5, 6.0))
sketch5.addConstraint(Sketcher.Constraint("DistanceX", 1, 1, 1, 2, 20.0))
sketch5.addConstraint(Sketcher.Constraint("DistanceY", 0, 2, 0, 1, 16.0))
sketch5.addConstraint(Sketcher.Constraint("DistanceX", 4, 3, -1, 1, 13.0))
sketch5.addConstraint(Sketcher.Constraint("DistanceY", 0, 2, -1, 1, 8.0))
sketch5.addConstraint(Sketcher.Constraint("DistanceX", 0, 2, -1, 1, 15.5))
pad1 = doc.addObject("PartDesign::Pad", "Pad")
body4.addObject(pad1)
pad1.Profile = sketch5
pad1.Length = 11.5
pad1.Reversed = True

sketch6 = doc.addObject("Sketcher::SketchObject", "Sketch005")
body4.addObject(sketch6)
sketch6.AttachmentSupport = (doc.getObject("XZ_Plane003"), [""])
sketch6.MapMode = "FlatFace"
sketch6.AttachmentOffset = App.Placement(Vector(0, 0, 8), App.Rotation())
sketch6.addGeometry(Part.LineSegment(Vector(-15.5, -10.3, 0), Vector(-9.9, -10.3, 0)), False)
sketch6.addGeometry(Part.ArcOfCircle(Part.Circle(Vector(-7, -9.6, 0), Vector(0, 0, 1), 3), math.radians(-166), math.radians(166)), False)
sketch6.addGeometry(Part.LineSegment(Vector(-9.9, -8.8, 0), Vector(-15.5, -8.8, 0)), False)
sketch6.addGeometry(Part.LineSegment(Vector(-15.5, -8.8, 0), Vector(-15.5, -10.3, 0)), False)
sketch6.addConstraint(Sketcher.Constraint("Coincident", 0, 2, 1, 1))
sketch6.addConstraint(Sketcher.Constraint("Coincident", 1, 2, 2, 1))
sketch6.addConstraint(Sketcher.Constraint("Coincident", 2, 2, 3, 1))
sketch6.addConstraint(Sketcher.Constraint("Coincident", 3, 2, 0, 1))
sketch6.addConstraint(Sketcher.Constraint("Horizontal", 0))
sketch6.addConstraint(Sketcher.Constraint("Horizontal", 2))
sketch6.addConstraint(Sketcher.Constraint("Vertical", 3))
sketch6.addConstraint(Sketcher.Constraint("Vertical", 0, 2, 1, 2))
sketch6.addConstraint(Sketcher.Constraint("Radius", 1, 3.0))
sketch6.addConstraint(Sketcher.Constraint("DistanceY", 3, 2, 3, 1, 1.5))
sketch6.addConstraint(Sketcher.Constraint("DistanceX", 1, 3, -1, 1, 7.0))
sketch6.addConstraint(Sketcher.Constraint("DistanceY", 1, 3, -1, 1, 9.6))
sketch6.addConstraint(Sketcher.Constraint("DistanceX", 2, 2, -1, 1, 15.5))
pocket2 = doc.addObject("PartDesign::Pocket", "Pocket001")
body4.addObject(pocket2)
pocket2.Profile = sketch6
pocket2.Type = "ThroughAll"

sketch7 = doc.addObject("Sketcher::SketchObject", "Sketch006")
body4.addObject(sketch7)
sketch7.AttachmentSupport = (doc.getObject("XZ_Plane003"), [""])
sketch7.MapMode = "FlatFace"
sketch7.AttachmentOffset = App.Placement(Vector(0, 0, 8), App.Rotation())
sketch7.addGeometry(Part.Circle(Vector(1, -8.8, 0), Vector(0, 0, 1), 1.5), False)
sketch7.addConstraint(Sketcher.Constraint("Diameter", 0, 3.0))
sketch7.addConstraint(Sketcher.Constraint("DistanceX", -1, 1, 0, 3, 1.0))
sketch7.addConstraint(Sketcher.Constraint("DistanceY", 0, 3, -1, 1, 8.8))
pocket3 = doc.addObject("PartDesign::Pocket", "Pocket002")
body4.addObject(pocket3)
pocket3.Profile = sketch7
pocket3.Length = 3.5

sketch8 = doc.addObject("Sketcher::SketchObject", "Sketch007")
body4.addObject(sketch8)
sketch8.AttachmentSupport = (doc.getObject("XZ_Plane003"), [""])
sketch8.MapMode = "FlatFace"
sketch8.AttachmentOffset = App.Placement(Vector(0, 0, 8), App.Rotation())
sketch8.addGeometry(Part.Circle(Vector(2.5, -11.6, 0), Vector(0, 0, 1), 0.8), False)
sketch8.addConstraint(Sketcher.Constraint("Diameter", 0, 1.5))
sketch8.addConstraint(Sketcher.Constraint("DistanceX", -1, 1, 0, 3, 2.5))
sketch8.addConstraint(Sketcher.Constraint("DistanceY", 0, 3, -1, 1, 11.6))
pocket4 = doc.addObject("PartDesign::Pocket", "Pocket003")
body4.addObject(pocket4)
pocket4.Profile = sketch8
pocket4.Length = 4.5

sketch9 = doc.addObject("Sketcher::SketchObject", "Sketch008")
body4.addObject(sketch9)
sketch9.AttachmentSupport = (doc.getObject("XZ_Plane003"), [""])
sketch9.MapMode = "FlatFace"
sketch9.AttachmentOffset = App.Placement(Vector(0, 0, 8), App.Rotation())
sketch9.addGeometry(Part.Circle(Vector(2.5, -11.6, 0), Vector(0, 0, 1), 1), False)
sketch9.addGeometry(Part.Circle(Vector(2.5, -11.6, 0), Vector(0, 0, 1), 0.8), False)
sketch9.addConstraint(Sketcher.Constraint("Coincident", 1, 3, 0, 3))
sketch9.addConstraint(Sketcher.Constraint("Diameter", 0, 2.0))
sketch9.addConstraint(Sketcher.Constraint("Diameter", 1, 1.5))
sketch9.addConstraint(Sketcher.Constraint("DistanceX", -1, 1, 0, 3, 2.5))
sketch9.addConstraint(Sketcher.Constraint("DistanceY", 0, 3, -1, 1, 11.6))
pocket5 = doc.addObject("PartDesign::Pocket", "Pocket004")
body4.addObject(pocket5)
pocket5.Profile = sketch9
pocket5.Length = 2
doc.recompute()

chamfer = doc.addObject("PartDesign::Chamfer", "Chamfer")
body4.addObject(chamfer)
chamfer.Base = (pocket5, edges_at(pocket5, [
    (-15.5, -8, -5.475),
    (-5.5, -8, -2.1),
    (4.5, -8, -7.85),
    (-5.5, -8, -13.6),
    (-15.5, 0, -10.35),
    (-15.5, 0, -8.85),
    (-15.5, 0, -13.6),
    (-15.5, 0, -2.1),
    (-15.5, 8, -5.475),
    (-15.5, 8, -11.975),
    (-12.702, 8, -8.85),
    (-12.702, 8, -10.35),
    (-4, 8, -9.6),
    (-5.5, 8, -2.1),
    (4.5, 8, -7.85),
    (-5.5, 8, -13.6),
    (-14.5, 0, -13.6),
    (-3, 0, -13.6),
    (4.5, 0, -13.6),
    (4.5, 0, -2.1),
    (-15.5, -8, -11.975),
    (-14.5, 0, -2.1),
    (-3, 0, -2.1),
    (-0.5, -8, -8.8),
    (1.5, -8, -11.6),
    (-4, -8, -9.6),
]))
chamfer.Size = 0.25

doc.recompute()
